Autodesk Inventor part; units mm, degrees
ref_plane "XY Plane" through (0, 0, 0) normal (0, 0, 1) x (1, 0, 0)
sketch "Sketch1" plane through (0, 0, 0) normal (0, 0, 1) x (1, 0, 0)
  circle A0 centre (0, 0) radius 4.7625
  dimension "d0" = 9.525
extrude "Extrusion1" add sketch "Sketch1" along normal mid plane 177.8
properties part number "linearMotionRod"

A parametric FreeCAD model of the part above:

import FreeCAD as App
import Part
import Sketcher

V = App.Vector
Q = App.Units.Quantity

doc = App.newDocument("Part")
params = doc.addObject("Spreadsheet::Sheet", "Params")
for row, (alias, value) in enumerate([
    ("sketch1_diameter", "0.375 in"),
    ("pad1_length", "7 in"),
], start=1):
    params.set(f"A{row}", alias)
    params.set(f"B{row}", "=" + value)
    params.setAlias(f"B{row}", alias)

body = doc.addObject("PartDesign::Body", "Body")

# Sketch on XY plane
sketch1 = body.newObject("Sketcher::SketchObject", "Sketch")
sketch1.AttachmentSupport = (doc.getObject("XY_Plane"), [""])
sketch1.MapMode = "FlatFace"
sketch1.addGeometry(Part.Circle(V(0, 0, 0), V(0, 0, 1), 4.8), False)
sketch1.addConstraint([
    Sketcher.Constraint("Coincident", 0, 3, -1, 1),
    Sketcher.Constraint("Diameter", 0, Q("0.375 in")),
])
sketch1.setExpression("Constraints[1]", "Params.sketch1_diameter")
pad1 = body.newObject("PartDesign::Pad", "Pad")
pad1.Profile = sketch1
pad1.setExpression("Length", "Params.pad1_length")
pad1.Midplane = True

doc.recompute()
